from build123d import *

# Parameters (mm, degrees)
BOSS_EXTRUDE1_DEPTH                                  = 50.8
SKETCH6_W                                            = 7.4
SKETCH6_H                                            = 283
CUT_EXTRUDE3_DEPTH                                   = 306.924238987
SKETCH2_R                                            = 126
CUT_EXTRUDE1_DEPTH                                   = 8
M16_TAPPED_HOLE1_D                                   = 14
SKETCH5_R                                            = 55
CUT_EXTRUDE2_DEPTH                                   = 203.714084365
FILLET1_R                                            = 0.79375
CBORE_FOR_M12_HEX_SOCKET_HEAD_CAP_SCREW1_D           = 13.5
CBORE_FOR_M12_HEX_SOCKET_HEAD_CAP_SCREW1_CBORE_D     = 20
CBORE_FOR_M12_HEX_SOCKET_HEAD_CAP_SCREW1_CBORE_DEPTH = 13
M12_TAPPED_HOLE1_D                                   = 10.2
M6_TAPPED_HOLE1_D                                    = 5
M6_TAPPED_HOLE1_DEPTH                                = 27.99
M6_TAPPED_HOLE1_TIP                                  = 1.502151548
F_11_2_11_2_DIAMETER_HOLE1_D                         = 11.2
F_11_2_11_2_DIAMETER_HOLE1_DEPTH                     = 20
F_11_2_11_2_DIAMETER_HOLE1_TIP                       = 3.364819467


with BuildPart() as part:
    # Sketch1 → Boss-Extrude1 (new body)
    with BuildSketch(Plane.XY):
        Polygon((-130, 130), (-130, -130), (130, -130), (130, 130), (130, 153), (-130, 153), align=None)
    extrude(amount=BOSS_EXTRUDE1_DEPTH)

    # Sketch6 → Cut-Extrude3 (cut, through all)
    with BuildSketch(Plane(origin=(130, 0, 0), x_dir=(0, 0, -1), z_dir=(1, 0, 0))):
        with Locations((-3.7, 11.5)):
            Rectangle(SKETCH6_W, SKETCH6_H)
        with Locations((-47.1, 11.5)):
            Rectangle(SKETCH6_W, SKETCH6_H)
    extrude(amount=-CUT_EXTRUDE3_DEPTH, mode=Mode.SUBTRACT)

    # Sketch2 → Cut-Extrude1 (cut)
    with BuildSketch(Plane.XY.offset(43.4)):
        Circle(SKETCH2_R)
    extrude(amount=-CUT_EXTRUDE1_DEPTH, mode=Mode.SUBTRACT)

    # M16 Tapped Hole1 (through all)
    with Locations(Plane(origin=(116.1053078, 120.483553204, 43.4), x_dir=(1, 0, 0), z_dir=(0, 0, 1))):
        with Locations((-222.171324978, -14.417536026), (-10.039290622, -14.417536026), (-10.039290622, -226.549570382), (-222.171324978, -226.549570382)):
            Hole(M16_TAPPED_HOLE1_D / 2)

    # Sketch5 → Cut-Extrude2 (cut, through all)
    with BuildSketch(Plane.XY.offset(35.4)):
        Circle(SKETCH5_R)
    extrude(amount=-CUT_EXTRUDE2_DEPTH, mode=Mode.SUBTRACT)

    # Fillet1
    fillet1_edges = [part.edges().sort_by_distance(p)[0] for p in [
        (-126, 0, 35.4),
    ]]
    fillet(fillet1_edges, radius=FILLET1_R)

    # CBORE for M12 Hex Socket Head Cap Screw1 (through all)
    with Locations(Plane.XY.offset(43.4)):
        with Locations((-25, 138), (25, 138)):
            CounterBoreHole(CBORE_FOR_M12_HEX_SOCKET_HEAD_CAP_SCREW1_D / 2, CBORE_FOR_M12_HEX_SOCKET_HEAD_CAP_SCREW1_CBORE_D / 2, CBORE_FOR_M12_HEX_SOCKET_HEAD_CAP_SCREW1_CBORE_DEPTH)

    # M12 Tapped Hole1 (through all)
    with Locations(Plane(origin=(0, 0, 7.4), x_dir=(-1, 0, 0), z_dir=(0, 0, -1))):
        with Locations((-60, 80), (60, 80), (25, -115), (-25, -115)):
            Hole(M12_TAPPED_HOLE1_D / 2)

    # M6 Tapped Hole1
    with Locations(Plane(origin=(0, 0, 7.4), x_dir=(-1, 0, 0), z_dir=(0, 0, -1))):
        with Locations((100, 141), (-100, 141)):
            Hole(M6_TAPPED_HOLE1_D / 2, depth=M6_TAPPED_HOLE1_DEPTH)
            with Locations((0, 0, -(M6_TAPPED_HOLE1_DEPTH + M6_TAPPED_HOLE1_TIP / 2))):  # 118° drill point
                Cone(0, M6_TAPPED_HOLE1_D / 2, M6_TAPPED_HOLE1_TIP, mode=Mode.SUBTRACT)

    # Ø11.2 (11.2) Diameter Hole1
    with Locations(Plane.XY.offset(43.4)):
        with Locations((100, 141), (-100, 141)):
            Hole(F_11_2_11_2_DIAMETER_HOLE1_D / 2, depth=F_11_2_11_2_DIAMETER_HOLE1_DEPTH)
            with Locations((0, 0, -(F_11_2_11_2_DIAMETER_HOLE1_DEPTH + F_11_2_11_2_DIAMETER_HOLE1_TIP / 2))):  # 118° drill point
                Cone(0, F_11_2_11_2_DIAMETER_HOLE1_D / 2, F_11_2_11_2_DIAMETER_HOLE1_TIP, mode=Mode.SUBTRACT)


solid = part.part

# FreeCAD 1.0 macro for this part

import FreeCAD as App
import Part
import Sketcher
from FreeCAD import Vector
Q = App.Units.Quantity


def edges_at(feature, points):
    """Names of the edges that pass closest to the given points."""
    edges = feature.Shape.Edges
    near = lambda p: min(range(len(edges)), key=lambda i: edges[i].distToShape(Part.Vertex(*p))[0])
    return sorted({f"Edge{near(p) + 1}" for p in points})


def add_polygon(sketch, points):
    """Adds a closed chain of lines whose ends are joined by coincident constraints."""
    first, n = sketch.GeometryCount, len(points)
    for a, b in zip(points, points[1:] + points[:1]):
        sketch.addGeometry(Part.LineSegment(App.Vector(*a, 0), App.Vector(*b, 0)), False)
    for i in range(n):
        sketch.addConstraint(Sketcher.Constraint("Coincident", first + i, 2, first + (i + 1) % n, 1))

doc = App.newDocument("Part")
body = doc.addObject("PartDesign::Body", "Body")

# Sketch on XY plane
sketch1 = body.newObject("Sketcher::SketchObject", "Sketch")
sketch1.AttachmentSupport = (doc.getObject("XY_Plane"), [""])
sketch1.MapMode = "FlatFace"
add_polygon(sketch1, [(-130, -130), (130, -130), (130, 153), (-130, 153)])  # lines 0-3
sketch1.addConstraint([
    Sketcher.Constraint("Horizontal", 0),
    Sketcher.Constraint("Vertical", 1),
    Sketcher.Constraint("Horizontal", 2),
    Sketcher.Constraint("Vertical", 3),
    Sketcher.Constraint("DistanceX", 0, 1, 0, 2, Q("260 mm")),
    Sketcher.Constraint("DistanceY", 1, 1, 1, 2, Q("283 mm")),
    Sketcher.Constraint("DistanceX", -1, 1, 0, 2, Q("130 mm")),
    Sketcher.Constraint("DistanceY", 0, 2, -1, 1, Q("130 mm")),
])
pad1 = body.newObject("PartDesign::Pad", "Pad")
pad1.Profile = sketch1
pad1.Length = 50.8

# Sketch on YZ plane
sketch2 = body.newObject("Sketcher::SketchObject", "Sketch001")
sketch2.AttachmentSupport = (doc.getObject("YZ_Plane"), [""])
sketch2.MapMode = "FlatFace"
sketch2.AttachmentOffset = App.Placement(Vector(0, 0, 130), App.Rotation())
add_polygon(sketch2, [(153, 7), (-130, 7), (-130, 0), (153, 0)])  # lines 0-3
add_polygon(sketch2, [(153, 51), (-130, 51), (-130, 43), (153, 43)])  # lines 4-7
sketch2.addConstraint([
    Sketcher.Constraint("Horizontal", 0),
    Sketcher.Constraint("Vertical", 1),
    Sketcher.Constraint("Horizontal", 2),
    Sketcher.Constraint("Vertical", 3),
    Sketcher.Constraint("Horizontal", 4),
    Sketcher.Constraint("Vertical", 5),
    Sketcher.Constraint("Horizontal", 6),
    Sketcher.Constraint("Vertical", 7),
    Sketcher.Constraint("PointOnObject", 1, 2, -1),
    Sketcher.Constraint("Vertical", 1, 2, 4, 2),
    Sketcher.Constraint("Vertical", 3, 2, 6, 2),
    Sketcher.Constraint("Equal", 3, 5),
    Sketcher.Constraint("DistanceX", 0, 2, 0, 1, Q("283 mm")),
    Sketcher.Constraint("DistanceY", 1, 2, 1, 1, Q("7.4 mm")),
    Sketcher.Constraint("DistanceX", 0, 2, -1, 1, Q("130 mm")),
    Sketcher.Constraint("DistanceY", 0, 2, 5, 2, Q("36 mm")),
])
pocket1 = body.newObject("PartDesign::Pocket", "Pocket")
pocket1.Profile = sketch2
pocket1.Type = "ThroughAll"

# Sketch on XY plane
sketch3 = body.newObject("Sketcher::SketchObject", "Sketch002")
sketch3.AttachmentSupport = (doc.getObject("XY_Plane"), [""])
sketch3.MapMode = "FlatFace"
sketch3.AttachmentOffset = App.Placement(Vector(0, 0, 43.4), App.Rotation())
sketch3.addGeometry(Part.Circle(Vector(0, 0, 0), Vector(0, 0, 1), 126), False)
sketch3.addConstraint([
    Sketcher.Constraint("Coincident", 0, 3, -1, 1),
    Sketcher.Constraint("Diameter", 0, Q("252 mm")),
])
pocket2 = body.newObject("PartDesign::Pocket", "Pocket001")
pocket2.Profile = sketch3
pocket2.Length = 8

# Sketch on XY plane
sketch4 = body.newObject("Sketcher::SketchObject", "Sketch003")
sketch4.AttachmentSupport = (doc.getObject("XY_Plane"), [""])
sketch4.MapMode = "FlatFace"
sketch4.AttachmentOffset = App.Placement(Vector(0, 0, 43.4), App.Rotation())
sketch4.addGeometry([
    Part.Circle(Vector(-106, 106, 0), Vector(0, 0, 1), 7),
    Part.Circle(Vector(106, 106, 0), Vector(0, 0, 1), 7),
    Part.Circle(Vector(106, -106, 0), Vector(0, 0, 1), 7),
    Part.Circle(Vector(-106, -106, 0), Vector(0, 0, 1), 7),
], False)
sketch4.addConstraint([
    Sketcher.Constraint("Equal", 0, 1),
    Sketcher.Constraint("Equal", 1, 2),
    Sketcher.Constraint("Equal", 2, 3),
    Sketcher.Constraint("Symmetric", 0, 3, 2, 3, -1, 1),
    Sketcher.Constraint("Symmetric", 1, 3, 3, 3, -1, 1),
    Sketcher.Constraint("Symmetric", 0, 3, 1, 3, -2),
    Sketcher.Constraint("Diameter", 0, Q("14 mm")),
    Sketcher.Constraint("DistanceX", 0, 3, -1, 1, Q("106.066017 mm")),
    Sketcher.Constraint("DistanceY", -1, 1, 0, 3, Q("106.066017 mm")),
])
doc.recompute()
hole = body.newObject("PartDesign::Hole", "Hole")
hole.Profile = sketch4
hole.ThreadType = "None"
hole.Diameter = 14
hole.DepthType = "ThroughAll"

# Sketch on XY plane
sketch5 = body.newObject("Sketcher::SketchObject", "Sketch004")
sketch5.AttachmentSupport = (doc.getObject("XY_Plane"), [""])
sketch5.MapMode = "FlatFace"
sketch5.AttachmentOffset = App.Placement(Vector(0, 0, 35.4), App.Rotation())
sketch5.addGeometry(Part.Circle(Vector(0, 0, 0), Vector(0, 0, 1), 55), False)
sketch5.addConstraint([
    Sketcher.Constraint("Coincident", 0, 3, -1, 1),
    Sketcher.Constraint("Diameter", 0, Q("110 mm")),
])
pocket3 = body.newObject("PartDesign::Pocket", "Pocket002")
pocket3.Profile = sketch5
pocket3.Type = "ThroughAll"
doc.recompute()

fillet = body.newObject("PartDesign::Fillet", "Fillet")
fillet.Base = (pocket3, edges_at(pocket3, [(-126, 0, 35.4)]))
fillet.Radius = 0.79375

# Sketch on XY plane
sketch6 = body.newObject("Sketcher::SketchObject", "Sketch005")
sketch6.AttachmentSupport = (doc.getObject("XY_Plane"), [""])
sketch6.MapMode = "FlatFace"
sketch6.AttachmentOffset = App.Placement(Vector(0, 0, 43.4), App.Rotation())
sketch6.addGeometry([
    Part.Circle(Vector(-25, 138, 0), Vector(0, 0, 1), 7),
    Part.Circle(Vector(25, 138, 0), Vector(0, 0, 1), 7),
], False)
sketch6.addConstraint([
    Sketcher.Constraint("Equal", 0, 1),
    Sketcher.Constraint("Symmetric", 0, 3, 1, 3, -2),
    Sketcher.Constraint("Diameter", 0, Q("13.5 mm")),
    Sketcher.Constraint("DistanceX", 0, 3, -1, 1, Q("25 mm")),
    Sketcher.Constraint("DistanceY", -1, 1, 0, 3, Q("138 mm")),
])
doc.recompute()
hole2 = body.newObject("PartDesign::Hole", "Hole001")
hole2.Profile = sketch6
hole2.ThreadType = "None"
hole2.Diameter = 13.5
hole2.DepthType = "ThroughAll"
hole2.HoleCutType = "Counterbore"
hole2.HoleCutDiameter = 20
hole2.HoleCutDepth = 13

# Sketch on XY plane
sketch7 = body.newObject("Sketcher::SketchObject", "Sketch006")
sketch7.AttachmentSupport = (doc.getObject("XY_Plane"), [""])
sketch7.MapMode = "FlatFace"
sketch7.AttachmentOffset = App.Placement(Vector(0, 0, 7.4), App.Rotation())
sketch7.addGeometry([
    Part.Circle(Vector(60, 80, 0), Vector(0, 0, 1), 5),
    Part.Circle(Vector(-60, 80, 0), Vector(0, 0, 1), 5),
    Part.Circle(Vector(-25, -115, 0), Vector(0, 0, 1), 5),
    Part.Circle(Vector(25, -115, 0), Vector(0, 0, 1), 5),
], False)
sketch7.addConstraint([
    Sketcher.Constraint("Equal", 0, 1),
    Sketcher.Constraint("Equal", 1, 2),
    Sketcher.Constraint("Equal", 2, 3),
    Sketcher.Constraint("Symmetric", 0, 3, 1, 3, -2),
    Sketcher.Constraint("Symmetric", 2, 3, 3, 3, -2),
    Sketcher.Constraint("Diameter", 0, Q("10.2 mm")),
    Sketcher.Constraint("DistanceX", -1, 1, 0, 3, Q("60 mm")),
    Sketcher.Constraint("DistanceY", -1, 1, 0, 3, Q("80 mm")),
    Sketcher.Constraint("DistanceX", 2, 3, -1, 1, Q("25 mm")),
    Sketcher.Constraint("DistanceY", 2, 3, -1, 1, Q("115 mm")),
])
doc.recompute()
hole3 = body.newObject("PartDesign::Hole", "Hole002")
hole3.Profile = sketch7
hole3.ThreadType = "None"
hole3.Diameter = 10.2
hole3.DepthType = "ThroughAll"
hole3.Reversed = True

# Sketch on XY plane
sketch8 = body.newObject("Sketcher::SketchObject", "Sketch007")
sketch8.AttachmentSupport = (doc.getObject("XY_Plane"), [""])
sketch8.MapMode = "FlatFace"
sketch8.AttachmentOffset = App.Placement(Vector(0, 0, 7.4), App.Rotation())
sketch8.addGeometry([
    Part.Circle(Vector(-100, 141, 0), Vector(0, 0, 1), 2.5),
    Part.Circle(Vector(100, 141, 0), Vector(0, 0, 1), 2.5),
], False)
sketch8.addConstraint([
    Sketcher.Constraint("Equal", 0, 1),
    Sketcher.Constraint("Symmetric", 0, 3, 1, 3, -2),
    Sketcher.Constraint("Diameter", 0, Q("5 mm")),
    Sketcher.Constraint("DistanceX", 0, 3, -1, 1, Q("100 mm")),
    Sketcher.Constraint("DistanceY", -1, 1, 0, 3, Q("141 mm")),
])
doc.recompute()
hole4 = body.newObject("PartDesign::Hole", "Hole003")
hole4.Profile = sketch8
hole4.ThreadType = "None"
hole4.Diameter = 5
hole4.DepthType = "Dimension"
hole4.Depth = 27.99
hole4.DrillPoint = "Angled"
hole4.DrillPointAngle = 118
hole4.Reversed = True

# Sketch on XY plane
sketch9 = body.newObject("Sketcher::SketchObject", "Sketch008")
sketch9.AttachmentSupport = (doc.getObject("XY_Plane"), [""])
sketch9.MapMode = "FlatFace"
sketch9.AttachmentOffset = App.Placement(Vector(0, 0, 43.4), App.Rotation())
sketch9.addGeometry([
    Part.Circle(Vector(100, 141, 0), Vector(0, 0, 1), 6),
    Part.Circle(Vector(-100, 141, 0), Vector(0, 0, 1), 6),
], False)
sketch9.addConstraint([
    Sketcher.Constraint("Equal", 0, 1),
    Sketcher.Constraint("Symmetric", 0, 3, 1, 3, -2),
    Sketcher.Constraint("Diameter", 0, Q("11.2 mm")),
    Sketcher.Constraint("DistanceX", -1, 1, 0, 3, Q("100 mm")),
    Sketcher.Constraint("DistanceY", -1, 1, 0, 3, Q("141 mm")),
])
doc.recompute()
hole5 = body.newObject("PartDesign::Hole", "Hole004")
hole5.Profile = sketch9
hole5.ThreadType = "None"
hole5.Diameter = 11.2
hole5.DepthType = "Dimension"
hole5.Depth = 20
hole5.DrillPoint = "Angled"
hole5.DrillPointAngle = 118

doc.recompute()
